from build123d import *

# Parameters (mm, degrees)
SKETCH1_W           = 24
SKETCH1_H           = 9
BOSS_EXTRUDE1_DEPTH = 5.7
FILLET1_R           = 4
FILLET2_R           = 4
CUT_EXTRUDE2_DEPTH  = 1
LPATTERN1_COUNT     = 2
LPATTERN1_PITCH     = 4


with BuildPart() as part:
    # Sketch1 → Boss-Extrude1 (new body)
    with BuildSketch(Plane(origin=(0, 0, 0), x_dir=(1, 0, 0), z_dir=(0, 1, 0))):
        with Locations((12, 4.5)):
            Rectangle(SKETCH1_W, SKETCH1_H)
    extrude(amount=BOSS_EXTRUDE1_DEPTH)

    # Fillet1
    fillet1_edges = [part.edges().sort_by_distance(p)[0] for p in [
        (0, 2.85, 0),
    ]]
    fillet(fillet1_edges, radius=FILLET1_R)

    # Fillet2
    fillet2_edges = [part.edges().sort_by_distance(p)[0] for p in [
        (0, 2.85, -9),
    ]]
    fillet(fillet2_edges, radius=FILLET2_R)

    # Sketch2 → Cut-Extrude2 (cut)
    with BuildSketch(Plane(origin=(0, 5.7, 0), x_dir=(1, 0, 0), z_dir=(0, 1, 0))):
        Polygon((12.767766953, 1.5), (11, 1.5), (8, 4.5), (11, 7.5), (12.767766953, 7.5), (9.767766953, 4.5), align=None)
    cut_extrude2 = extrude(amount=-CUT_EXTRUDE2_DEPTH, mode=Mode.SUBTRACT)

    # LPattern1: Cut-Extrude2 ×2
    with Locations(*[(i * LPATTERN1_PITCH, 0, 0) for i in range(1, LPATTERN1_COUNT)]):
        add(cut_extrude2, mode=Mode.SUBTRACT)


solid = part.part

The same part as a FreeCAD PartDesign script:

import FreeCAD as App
import Part
import Sketcher

V = App.Vector
Q = App.Units.Quantity


def edges_at(feature, points):
    """Names of the edges that pass closest to the given points."""
    edges = feature.Shape.Edges
    near = lambda p: min(range(len(edges)), key=lambda i: edges[i].distToShape(Part.Vertex(*p))[0])
    return sorted({f"Edge{near(p) + 1}" for p in points})


def add_polygon(sketch, points):
    """Adds a closed chain of lines whose ends are joined by coincident constraints."""
    first, n = sketch.GeometryCount, len(points)
    for a, b in zip(points, points[1:] + points[:1]):
        sketch.addGeometry(Part.LineSegment(App.Vector(*a, 0), App.Vector(*b, 0)), False)
    for i in range(n):
        sketch.addConstraint(Sketcher.Constraint("Coincident", first + i, 2, first + (i + 1) % n, 1))

doc = App.newDocument("Part")
params = doc.addObject("Spreadsheet::Sheet", "Params")
for row, (alias, value) in enumerate([
    ("sketch1_width", "24 mm"),
    ("sketch1_height", "9 mm"),
    ("pad1_length", "5.7 mm"),
    ("fillet_radius", "4 mm"),
    ("fillet2_radius", "4 mm"),
    ("pocket1_length", "1 mm"),
    ("linearpattern_pitch", "4 mm"),
], start=1):
    params.set(f"A{row}", alias)
    params.set(f"B{row}", "=" + value)
    params.setAlias(f"B{row}", alias)

body = doc.addObject("PartDesign::Body", "Body")

sketch1 = body.newObject("Sketcher::SketchObject", "Sketch")
sketch1.AttachmentSupport = (doc.getObject("XZ_Plane"), [""])
sketch1.MapMode = "FlatFace"
add_polygon(sketch1, [(0, -9), (0, 0), (24, 0), (24, -9)])
sketch1.addConstraint([
    Sketcher.Constraint("Vertical", 0),
    Sketcher.Constraint("Horizontal", 1),
    Sketcher.Constraint("Vertical", 2),
    Sketcher.Constraint("Horizontal", 3),
    Sketcher.Constraint("Coincident", 0, 2, -1, 1),
    Sketcher.Constraint("DistanceX", 1, 1, 1, 2, Q("24 mm")),
    Sketcher.Constraint("DistanceY", 0, 1, 0, 2, Q("9 mm")),
])
sketch1.setExpression("Constraints[9]", "Params.sketch1_width")
sketch1.setExpression("Constraints[10]", "Params.sketch1_height")
pad1 = body.newObject("PartDesign::Pad", "Pad")
pad1.Profile = sketch1
pad1.setExpression("Length", "Params.pad1_length")
pad1.Reversed = True
doc.recompute()

fillet = body.newObject("PartDesign::Fillet", "Fillet")
fillet.Base = (pad1, edges_at(pad1, [(0, 2.85, 0)]))
fillet.setExpression("Radius", "Params.fillet_radius")
doc.recompute()

fillet2 = body.newObject("PartDesign::Fillet", "Fillet001")
fillet2.Base = (fillet, edges_at(fillet, [(0, 2.85, -9)]))
fillet2.setExpression("Radius", "Params.fillet2_radius")

sketch2 = body.newObject("Sketcher::SketchObject", "Sketch001")
sketch2.AttachmentSupport = (doc.getObject("XZ_Plane"), [""])
sketch2.MapMode = "FlatFace"
sketch2.AttachmentOffset = App.Placement(V(0, 0, -5.7), App.Rotation())
add_polygon(sketch2, [(11, -1.5), (12.8, -1.5), (9.8, -4.5), (12.8, -7.5), (11, -7.5), (8, -4.5)])
sketch2.addConstraint([
    Sketcher.Constraint("Horizontal", 0),
    Sketcher.Constraint("Horizontal", 3),
    Sketcher.Constraint("Perpendicular", 1, 2),
    Sketcher.Constraint("Parallel", 2, 4),
    Sketcher.Constraint("Perpendicular", 4, 5),
    Sketcher.Constraint("Horizontal", 1, 2, 4, 2),
    Sketcher.Constraint("Vertical", 0, 2, 2, 2),
    Sketcher.Constraint("Equal", 1, 2),
    Sketcher.Constraint("DistanceX", -1, 1, 3, 2, Q("11 mm")),
    Sketcher.Constraint("DistanceX", -1, 1, 4, 2, Q("8 mm")),
    Sketcher.Constraint("DistanceY", 0, 2, -1, 1, Q("1.5 mm")),
    Sketcher.Constraint("DistanceX", 0, 1, 0, 2, Q("1.767767 mm")),
])
pocket1 = body.newObject("PartDesign::Pocket", "Pocket")
pocket1.Profile = sketch2
pocket1.setExpression("Length", "Params.pocket1_length")
pocket1.Reversed = True
doc.recompute()

linearpattern = body.newObject("PartDesign::LinearPattern", "LinearPattern")
linearpattern.Originals = [pocket1]
linearpattern.Direction = (doc.getObject("X_Axis"), [""])
linearpattern.Mode = "offset"
linearpattern.setExpression("Offset", "Params.linearpattern_pitch")
linearpattern.Occurrences = 2
body.Tip = linearpattern

doc.recompute()
